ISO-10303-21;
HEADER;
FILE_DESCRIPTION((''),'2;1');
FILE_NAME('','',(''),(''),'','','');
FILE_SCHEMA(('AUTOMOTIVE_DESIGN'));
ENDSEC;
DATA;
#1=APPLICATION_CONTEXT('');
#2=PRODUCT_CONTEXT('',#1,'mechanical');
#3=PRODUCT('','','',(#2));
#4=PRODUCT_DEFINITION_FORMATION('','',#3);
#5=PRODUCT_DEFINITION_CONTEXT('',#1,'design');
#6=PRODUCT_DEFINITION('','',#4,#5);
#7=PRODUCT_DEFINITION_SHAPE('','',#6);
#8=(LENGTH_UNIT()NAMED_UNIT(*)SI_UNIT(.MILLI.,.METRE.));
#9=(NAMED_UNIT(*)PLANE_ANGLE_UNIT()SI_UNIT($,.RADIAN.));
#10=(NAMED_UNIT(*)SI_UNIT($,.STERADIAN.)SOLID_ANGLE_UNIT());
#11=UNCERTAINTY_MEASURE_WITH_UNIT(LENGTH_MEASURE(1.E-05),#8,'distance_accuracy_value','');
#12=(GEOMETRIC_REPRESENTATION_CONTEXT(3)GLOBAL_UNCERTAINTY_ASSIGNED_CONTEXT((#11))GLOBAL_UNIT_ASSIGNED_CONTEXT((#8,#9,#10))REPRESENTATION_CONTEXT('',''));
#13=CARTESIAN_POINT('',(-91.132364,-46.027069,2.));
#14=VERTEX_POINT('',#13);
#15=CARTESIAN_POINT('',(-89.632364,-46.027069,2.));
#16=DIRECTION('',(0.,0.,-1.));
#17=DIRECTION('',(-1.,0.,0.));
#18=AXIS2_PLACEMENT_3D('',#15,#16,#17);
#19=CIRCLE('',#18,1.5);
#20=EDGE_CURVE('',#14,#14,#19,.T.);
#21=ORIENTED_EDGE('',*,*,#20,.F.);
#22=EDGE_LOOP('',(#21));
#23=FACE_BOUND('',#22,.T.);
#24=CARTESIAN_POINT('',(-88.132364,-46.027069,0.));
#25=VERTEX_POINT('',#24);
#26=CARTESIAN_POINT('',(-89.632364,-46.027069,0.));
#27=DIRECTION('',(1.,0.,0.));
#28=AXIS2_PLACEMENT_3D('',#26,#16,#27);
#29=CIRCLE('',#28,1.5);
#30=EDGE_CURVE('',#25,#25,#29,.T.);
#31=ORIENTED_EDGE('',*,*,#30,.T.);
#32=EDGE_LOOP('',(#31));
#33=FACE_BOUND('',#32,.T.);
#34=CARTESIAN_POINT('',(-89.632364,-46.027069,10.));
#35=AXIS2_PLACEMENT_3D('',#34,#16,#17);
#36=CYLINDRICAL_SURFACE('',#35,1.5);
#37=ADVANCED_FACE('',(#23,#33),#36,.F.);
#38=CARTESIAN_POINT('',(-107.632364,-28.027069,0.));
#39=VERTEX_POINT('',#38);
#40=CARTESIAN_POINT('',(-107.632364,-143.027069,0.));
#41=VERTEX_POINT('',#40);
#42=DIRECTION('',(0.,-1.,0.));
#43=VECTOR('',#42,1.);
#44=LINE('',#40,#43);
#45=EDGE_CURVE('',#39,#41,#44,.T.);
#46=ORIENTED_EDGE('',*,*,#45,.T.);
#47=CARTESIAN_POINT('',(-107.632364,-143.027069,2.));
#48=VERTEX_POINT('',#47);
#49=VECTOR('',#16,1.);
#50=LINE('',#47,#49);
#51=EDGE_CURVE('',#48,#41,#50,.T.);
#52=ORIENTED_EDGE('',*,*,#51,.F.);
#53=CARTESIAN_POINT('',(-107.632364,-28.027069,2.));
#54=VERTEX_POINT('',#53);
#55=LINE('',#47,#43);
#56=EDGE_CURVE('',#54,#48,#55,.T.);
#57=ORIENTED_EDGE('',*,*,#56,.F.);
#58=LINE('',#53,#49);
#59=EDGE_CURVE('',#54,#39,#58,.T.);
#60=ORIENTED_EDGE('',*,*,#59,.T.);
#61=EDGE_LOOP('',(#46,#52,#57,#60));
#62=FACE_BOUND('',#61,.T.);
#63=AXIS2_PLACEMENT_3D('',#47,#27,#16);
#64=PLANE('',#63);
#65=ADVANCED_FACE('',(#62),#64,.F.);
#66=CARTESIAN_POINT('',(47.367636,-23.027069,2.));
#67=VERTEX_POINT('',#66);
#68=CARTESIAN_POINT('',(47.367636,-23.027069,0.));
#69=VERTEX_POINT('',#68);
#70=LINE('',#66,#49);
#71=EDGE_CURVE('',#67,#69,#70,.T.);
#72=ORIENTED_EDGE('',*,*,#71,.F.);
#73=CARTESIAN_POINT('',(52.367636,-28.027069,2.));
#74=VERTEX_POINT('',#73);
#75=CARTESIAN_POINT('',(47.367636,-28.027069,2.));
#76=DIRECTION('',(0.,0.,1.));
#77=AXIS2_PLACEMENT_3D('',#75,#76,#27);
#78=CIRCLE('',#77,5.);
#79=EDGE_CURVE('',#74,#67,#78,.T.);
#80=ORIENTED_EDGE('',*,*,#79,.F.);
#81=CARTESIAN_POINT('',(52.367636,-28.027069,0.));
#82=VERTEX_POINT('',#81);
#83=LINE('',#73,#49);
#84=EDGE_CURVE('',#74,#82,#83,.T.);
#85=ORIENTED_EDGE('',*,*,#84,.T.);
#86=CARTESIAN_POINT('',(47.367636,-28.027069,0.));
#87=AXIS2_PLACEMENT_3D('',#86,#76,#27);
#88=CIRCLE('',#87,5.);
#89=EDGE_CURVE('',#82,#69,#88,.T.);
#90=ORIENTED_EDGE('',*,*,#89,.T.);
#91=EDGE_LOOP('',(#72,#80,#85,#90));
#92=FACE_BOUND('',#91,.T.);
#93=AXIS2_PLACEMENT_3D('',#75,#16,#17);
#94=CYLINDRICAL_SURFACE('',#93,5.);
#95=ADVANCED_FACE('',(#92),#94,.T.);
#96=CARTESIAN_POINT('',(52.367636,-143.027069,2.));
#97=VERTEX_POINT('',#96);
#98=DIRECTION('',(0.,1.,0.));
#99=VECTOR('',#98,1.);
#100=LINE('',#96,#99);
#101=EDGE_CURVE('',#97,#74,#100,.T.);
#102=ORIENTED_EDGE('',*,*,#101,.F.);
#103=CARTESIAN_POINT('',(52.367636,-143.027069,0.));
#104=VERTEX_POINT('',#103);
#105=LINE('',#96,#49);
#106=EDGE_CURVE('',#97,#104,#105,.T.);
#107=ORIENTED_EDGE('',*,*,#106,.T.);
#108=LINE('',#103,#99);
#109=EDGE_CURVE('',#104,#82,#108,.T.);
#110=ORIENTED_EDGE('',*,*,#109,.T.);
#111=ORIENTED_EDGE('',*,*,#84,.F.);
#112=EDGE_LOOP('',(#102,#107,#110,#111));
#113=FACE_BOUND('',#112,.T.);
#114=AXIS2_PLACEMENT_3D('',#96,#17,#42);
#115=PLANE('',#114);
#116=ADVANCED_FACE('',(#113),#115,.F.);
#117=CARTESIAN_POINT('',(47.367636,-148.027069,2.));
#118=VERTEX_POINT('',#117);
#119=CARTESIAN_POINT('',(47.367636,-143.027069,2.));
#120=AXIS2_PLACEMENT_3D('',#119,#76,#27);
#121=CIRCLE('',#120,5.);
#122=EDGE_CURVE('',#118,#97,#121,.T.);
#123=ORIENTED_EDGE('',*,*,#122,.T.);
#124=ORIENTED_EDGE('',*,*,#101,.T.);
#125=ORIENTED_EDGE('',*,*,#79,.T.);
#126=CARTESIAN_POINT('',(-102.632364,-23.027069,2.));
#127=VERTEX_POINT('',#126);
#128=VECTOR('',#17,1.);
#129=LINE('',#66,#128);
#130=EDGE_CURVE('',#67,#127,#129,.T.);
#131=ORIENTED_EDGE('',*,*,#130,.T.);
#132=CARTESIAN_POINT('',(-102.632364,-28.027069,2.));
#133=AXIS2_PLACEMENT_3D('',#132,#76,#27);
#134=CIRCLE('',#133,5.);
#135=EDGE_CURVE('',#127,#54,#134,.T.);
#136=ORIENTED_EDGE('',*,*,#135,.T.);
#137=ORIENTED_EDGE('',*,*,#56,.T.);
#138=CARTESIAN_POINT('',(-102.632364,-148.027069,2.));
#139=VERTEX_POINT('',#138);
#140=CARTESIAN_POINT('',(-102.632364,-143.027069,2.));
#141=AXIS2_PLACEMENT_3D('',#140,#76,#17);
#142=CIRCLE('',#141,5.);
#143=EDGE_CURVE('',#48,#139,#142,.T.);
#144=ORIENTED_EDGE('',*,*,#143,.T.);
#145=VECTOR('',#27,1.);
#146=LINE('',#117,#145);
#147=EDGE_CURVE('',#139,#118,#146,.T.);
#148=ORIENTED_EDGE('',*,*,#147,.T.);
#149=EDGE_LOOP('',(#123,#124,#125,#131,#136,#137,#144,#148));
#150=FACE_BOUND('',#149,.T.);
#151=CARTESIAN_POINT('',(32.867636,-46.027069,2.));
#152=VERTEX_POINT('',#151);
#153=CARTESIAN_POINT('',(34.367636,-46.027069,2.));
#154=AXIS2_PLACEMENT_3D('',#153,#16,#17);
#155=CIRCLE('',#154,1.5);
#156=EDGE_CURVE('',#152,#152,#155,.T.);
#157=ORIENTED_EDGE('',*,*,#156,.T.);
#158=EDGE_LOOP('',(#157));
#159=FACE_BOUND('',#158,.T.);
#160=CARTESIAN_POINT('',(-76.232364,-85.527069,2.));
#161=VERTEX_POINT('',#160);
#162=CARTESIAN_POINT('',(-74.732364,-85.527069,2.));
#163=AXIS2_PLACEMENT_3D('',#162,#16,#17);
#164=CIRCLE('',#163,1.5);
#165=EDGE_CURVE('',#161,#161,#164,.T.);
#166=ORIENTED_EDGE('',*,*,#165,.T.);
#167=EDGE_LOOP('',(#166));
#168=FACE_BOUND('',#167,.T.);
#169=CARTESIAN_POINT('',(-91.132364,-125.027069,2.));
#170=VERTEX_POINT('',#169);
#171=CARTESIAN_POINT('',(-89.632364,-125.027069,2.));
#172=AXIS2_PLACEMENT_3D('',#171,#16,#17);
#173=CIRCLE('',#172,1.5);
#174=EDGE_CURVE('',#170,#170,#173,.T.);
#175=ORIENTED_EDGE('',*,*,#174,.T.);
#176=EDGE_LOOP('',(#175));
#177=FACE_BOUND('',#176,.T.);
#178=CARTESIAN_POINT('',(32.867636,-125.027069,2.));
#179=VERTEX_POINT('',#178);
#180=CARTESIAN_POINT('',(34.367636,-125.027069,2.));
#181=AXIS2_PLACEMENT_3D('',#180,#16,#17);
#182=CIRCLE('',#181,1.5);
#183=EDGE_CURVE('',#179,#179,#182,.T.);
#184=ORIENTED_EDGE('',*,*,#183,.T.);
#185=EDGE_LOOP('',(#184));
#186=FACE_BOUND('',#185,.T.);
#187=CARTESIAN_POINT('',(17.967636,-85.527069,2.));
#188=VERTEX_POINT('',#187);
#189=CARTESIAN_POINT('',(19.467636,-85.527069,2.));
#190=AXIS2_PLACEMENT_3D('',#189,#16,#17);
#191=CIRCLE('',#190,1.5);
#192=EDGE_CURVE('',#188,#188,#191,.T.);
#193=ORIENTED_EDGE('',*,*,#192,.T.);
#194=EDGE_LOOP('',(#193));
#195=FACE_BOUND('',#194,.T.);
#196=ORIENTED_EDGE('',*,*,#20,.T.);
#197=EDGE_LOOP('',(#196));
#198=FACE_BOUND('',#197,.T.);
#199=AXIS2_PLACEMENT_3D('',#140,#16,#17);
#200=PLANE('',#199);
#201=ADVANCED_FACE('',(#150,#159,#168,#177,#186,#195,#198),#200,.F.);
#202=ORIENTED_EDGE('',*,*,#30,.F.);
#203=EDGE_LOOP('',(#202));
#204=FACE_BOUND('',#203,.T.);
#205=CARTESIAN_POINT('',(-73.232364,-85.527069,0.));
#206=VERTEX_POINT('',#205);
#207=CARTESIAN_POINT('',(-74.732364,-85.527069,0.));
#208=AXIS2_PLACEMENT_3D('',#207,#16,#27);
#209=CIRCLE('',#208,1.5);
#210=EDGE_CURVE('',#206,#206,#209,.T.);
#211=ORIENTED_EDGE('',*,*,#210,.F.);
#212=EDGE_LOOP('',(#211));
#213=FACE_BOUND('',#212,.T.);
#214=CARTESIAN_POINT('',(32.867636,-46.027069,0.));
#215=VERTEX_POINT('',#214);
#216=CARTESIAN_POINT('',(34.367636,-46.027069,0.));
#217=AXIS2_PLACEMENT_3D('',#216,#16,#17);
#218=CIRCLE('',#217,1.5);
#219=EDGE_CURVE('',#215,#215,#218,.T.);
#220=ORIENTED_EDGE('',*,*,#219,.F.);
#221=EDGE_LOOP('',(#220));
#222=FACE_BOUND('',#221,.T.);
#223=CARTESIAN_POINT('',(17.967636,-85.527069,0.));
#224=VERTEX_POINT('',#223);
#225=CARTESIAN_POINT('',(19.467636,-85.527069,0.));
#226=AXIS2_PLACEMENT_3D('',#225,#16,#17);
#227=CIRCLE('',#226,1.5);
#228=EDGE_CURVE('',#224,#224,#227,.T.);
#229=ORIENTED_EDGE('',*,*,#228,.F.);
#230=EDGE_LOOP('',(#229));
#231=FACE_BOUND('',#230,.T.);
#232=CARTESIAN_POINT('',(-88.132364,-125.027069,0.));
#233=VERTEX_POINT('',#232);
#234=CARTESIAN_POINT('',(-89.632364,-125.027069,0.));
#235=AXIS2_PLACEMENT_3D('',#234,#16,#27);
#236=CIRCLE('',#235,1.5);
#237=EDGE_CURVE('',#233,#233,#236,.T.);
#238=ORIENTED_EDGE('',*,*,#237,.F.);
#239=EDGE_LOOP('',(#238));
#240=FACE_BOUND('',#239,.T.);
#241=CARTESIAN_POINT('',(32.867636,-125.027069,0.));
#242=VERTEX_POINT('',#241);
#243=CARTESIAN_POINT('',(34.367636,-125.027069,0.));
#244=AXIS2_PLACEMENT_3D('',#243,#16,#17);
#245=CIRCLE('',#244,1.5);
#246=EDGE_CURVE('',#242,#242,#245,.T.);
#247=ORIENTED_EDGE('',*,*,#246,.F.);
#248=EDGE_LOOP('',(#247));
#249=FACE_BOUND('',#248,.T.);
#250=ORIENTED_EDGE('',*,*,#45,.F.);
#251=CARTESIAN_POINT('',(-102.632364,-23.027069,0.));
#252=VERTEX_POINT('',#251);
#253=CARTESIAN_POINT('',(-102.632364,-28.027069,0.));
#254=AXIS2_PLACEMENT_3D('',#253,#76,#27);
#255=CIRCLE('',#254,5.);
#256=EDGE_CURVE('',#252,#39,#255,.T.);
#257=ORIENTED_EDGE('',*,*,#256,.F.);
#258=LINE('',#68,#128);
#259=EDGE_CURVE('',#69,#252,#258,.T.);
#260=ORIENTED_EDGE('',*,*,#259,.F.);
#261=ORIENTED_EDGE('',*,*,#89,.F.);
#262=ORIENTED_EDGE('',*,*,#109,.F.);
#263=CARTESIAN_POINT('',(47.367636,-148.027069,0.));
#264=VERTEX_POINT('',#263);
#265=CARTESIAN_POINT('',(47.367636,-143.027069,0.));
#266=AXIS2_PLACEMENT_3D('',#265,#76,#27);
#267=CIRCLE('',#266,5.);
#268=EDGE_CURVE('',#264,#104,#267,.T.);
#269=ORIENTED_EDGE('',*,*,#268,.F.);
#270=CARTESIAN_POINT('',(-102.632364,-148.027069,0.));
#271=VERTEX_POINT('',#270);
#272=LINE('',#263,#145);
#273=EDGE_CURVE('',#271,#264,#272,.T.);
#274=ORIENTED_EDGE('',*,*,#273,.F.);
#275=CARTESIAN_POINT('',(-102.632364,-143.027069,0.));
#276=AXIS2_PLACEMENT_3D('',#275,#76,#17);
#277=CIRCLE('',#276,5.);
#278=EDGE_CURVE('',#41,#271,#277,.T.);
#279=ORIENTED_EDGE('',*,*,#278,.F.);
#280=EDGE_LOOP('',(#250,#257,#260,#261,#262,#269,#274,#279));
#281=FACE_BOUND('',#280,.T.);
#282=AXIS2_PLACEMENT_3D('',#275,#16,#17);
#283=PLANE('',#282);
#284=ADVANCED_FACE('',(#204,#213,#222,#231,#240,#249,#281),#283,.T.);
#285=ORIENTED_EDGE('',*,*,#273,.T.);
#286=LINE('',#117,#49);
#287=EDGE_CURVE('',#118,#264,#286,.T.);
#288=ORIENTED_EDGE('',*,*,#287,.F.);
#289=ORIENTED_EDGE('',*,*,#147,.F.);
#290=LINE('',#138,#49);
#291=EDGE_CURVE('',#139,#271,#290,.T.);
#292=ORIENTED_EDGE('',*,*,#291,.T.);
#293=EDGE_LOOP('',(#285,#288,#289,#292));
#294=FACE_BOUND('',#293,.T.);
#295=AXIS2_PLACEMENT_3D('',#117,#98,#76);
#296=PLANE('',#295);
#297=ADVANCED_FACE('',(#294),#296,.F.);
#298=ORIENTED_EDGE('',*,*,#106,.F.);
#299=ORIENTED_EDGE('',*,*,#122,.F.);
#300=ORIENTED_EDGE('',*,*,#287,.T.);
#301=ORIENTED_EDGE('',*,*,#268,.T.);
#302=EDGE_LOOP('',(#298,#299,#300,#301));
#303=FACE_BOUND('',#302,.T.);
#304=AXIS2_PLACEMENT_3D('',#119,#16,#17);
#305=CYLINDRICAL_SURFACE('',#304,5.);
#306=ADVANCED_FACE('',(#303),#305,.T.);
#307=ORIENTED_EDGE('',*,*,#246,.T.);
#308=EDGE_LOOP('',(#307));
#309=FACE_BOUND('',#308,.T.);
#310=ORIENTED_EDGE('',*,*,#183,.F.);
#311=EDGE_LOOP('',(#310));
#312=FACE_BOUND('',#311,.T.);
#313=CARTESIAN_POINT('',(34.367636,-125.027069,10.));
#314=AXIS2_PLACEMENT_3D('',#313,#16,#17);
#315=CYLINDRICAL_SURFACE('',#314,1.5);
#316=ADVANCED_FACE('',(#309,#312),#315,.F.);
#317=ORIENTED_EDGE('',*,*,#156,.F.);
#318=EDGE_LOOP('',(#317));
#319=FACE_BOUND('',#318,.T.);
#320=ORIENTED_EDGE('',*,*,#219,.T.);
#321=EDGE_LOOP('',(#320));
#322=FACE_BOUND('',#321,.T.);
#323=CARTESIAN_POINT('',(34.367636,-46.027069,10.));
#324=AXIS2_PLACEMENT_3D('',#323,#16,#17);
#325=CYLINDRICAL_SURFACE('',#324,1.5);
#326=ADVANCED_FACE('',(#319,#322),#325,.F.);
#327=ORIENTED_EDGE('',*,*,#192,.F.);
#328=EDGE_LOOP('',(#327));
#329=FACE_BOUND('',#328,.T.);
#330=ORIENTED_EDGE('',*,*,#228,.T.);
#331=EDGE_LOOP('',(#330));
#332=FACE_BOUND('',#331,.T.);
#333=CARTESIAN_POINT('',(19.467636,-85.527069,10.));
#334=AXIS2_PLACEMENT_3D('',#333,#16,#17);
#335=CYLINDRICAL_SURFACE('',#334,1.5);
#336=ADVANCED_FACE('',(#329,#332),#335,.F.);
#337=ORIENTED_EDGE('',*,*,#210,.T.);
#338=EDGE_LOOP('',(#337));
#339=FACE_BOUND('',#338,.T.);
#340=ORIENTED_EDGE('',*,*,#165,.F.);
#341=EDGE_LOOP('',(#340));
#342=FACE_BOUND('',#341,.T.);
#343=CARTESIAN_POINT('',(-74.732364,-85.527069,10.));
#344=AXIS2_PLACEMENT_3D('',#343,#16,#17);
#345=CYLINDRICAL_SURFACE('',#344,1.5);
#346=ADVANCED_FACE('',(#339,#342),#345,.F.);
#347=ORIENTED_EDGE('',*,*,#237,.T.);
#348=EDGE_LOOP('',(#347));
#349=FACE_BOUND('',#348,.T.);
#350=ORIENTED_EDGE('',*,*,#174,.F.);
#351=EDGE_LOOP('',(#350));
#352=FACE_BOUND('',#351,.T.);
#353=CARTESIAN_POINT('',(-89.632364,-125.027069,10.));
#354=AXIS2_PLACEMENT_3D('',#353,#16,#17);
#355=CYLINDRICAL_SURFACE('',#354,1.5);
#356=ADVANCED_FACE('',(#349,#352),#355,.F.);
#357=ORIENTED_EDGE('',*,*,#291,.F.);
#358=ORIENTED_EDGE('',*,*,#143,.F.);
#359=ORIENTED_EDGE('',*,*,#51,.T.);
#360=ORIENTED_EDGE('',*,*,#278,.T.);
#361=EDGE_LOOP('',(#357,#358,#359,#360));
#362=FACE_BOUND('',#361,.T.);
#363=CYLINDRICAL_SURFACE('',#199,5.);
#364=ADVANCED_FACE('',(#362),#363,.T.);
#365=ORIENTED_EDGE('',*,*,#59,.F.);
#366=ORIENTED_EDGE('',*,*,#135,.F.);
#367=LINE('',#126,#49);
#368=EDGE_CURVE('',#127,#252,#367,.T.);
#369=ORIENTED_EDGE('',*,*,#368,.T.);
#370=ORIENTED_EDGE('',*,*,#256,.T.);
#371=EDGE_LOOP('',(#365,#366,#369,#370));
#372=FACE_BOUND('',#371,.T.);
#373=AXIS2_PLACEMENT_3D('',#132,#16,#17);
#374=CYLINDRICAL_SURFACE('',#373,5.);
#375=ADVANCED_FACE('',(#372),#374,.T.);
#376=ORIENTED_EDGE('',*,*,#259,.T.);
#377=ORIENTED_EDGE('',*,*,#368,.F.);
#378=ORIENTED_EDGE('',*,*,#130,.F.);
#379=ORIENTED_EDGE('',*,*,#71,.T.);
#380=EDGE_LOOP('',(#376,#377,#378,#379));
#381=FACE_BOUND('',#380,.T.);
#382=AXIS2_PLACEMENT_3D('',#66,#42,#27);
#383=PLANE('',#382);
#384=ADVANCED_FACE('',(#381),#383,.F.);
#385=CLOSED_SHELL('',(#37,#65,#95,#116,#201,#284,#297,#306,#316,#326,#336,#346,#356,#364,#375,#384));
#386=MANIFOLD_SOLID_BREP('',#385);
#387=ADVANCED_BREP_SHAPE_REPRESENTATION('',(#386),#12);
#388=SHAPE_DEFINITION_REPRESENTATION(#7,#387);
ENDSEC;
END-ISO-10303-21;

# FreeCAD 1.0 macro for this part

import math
import FreeCAD as App
import Part
import Sketcher

doc = App.newDocument("Part")
params = doc.addObject("Spreadsheet::Sheet", "Params")
for row, (alias, value) in enumerate([
    ("sketch1_radius", "5 mm"),
    ("sketch1_width", "150 mm"),
    ("sketch1_height", "115 mm"),
    ("pad1_length", "2 mm"),
    ("sketch2_diameter", "3 mm"),
    ("pocket1_length", "10 mm"),
], start=1):
    params.set(f"A{row}", alias)
    params.set(f"B{row}", "=" + value)
    params.setAlias(f"B{row}", alias)

body = doc.addObject("PartDesign::Body", "Body")

sketch1 = body.newObject("Sketcher::SketchObject", "Sketch")
sketch1.AttachmentSupport = (doc.getObject("XY_Plane"), [""])
sketch1.MapMode = "FlatFace"
sketch1.addGeometry([
    Part.LineSegment(App.Vector(-103, -148, 0), App.Vector(47, -148, 0)),
    Part.ArcOfCircle(Part.Circle(App.Vector(47, -143, 0), App.Vector(0, 0, 1), 5), math.radians(-90), math.radians(0)),
    Part.LineSegment(App.Vector(52, -143, 0), App.Vector(52, -28, 0)),
    Part.ArcOfCircle(Part.Circle(App.Vector(47, -28, 0), App.Vector(0, 0, 1), 5), math.radians(0), math.radians(90)),
    Part.LineSegment(App.Vector(47, -23, 0), App.Vector(-103, -23, 0)),
    Part.ArcOfCircle(Part.Circle(App.Vector(-103, -28, 0), App.Vector(0, 0, 1), 5), math.radians(90), math.radians(180)),
    Part.LineSegment(App.Vector(-108, -28, 0), App.Vector(-108, -143, 0)),
    Part.ArcOfCircle(Part.Circle(App.Vector(-103, -143, 0), App.Vector(0, 0, 1), 5), math.radians(180), math.radians(270)),
], False)
sketch1.addConstraint([
    Sketcher.Constraint("Tangent", 0, 2, 1, 1),
    Sketcher.Constraint("Tangent", 1, 2, 2, 1),
    Sketcher.Constraint("Tangent", 2, 2, 3, 1),
    Sketcher.Constraint("Tangent", 3, 2, 4, 1),
    Sketcher.Constraint("Tangent", 4, 2, 5, 1),
    Sketcher.Constraint("Tangent", 5, 2, 6, 1),
    Sketcher.Constraint("Tangent", 6, 2, 7, 1),
    Sketcher.Constraint("Tangent", 7, 2, 0, 1),
    Sketcher.Constraint("Horizontal", 0),
    Sketcher.Constraint("Vertical", 2),
    Sketcher.Constraint("Horizontal", 4),
    Sketcher.Constraint("Vertical", 6),
    Sketcher.Constraint("Equal", 1, 3),
    Sketcher.Constraint("Equal", 3, 5),
    Sketcher.Constraint("Equal", 5, 7),
    Sketcher.Constraint("Radius", 1, 5.0),
    Sketcher.Constraint("DistanceX", 0, 1, 0, 2, 150.0),
    Sketcher.Constraint("DistanceY", 2, 1, 2, 2, 115.0),
    Sketcher.Constraint("DistanceY", 1, 3, -1, 1, 143.027069),
    Sketcher.Constraint("DistanceX", -1, 1, 1, 3, 47.367636),
])
sketch1.setExpression("Constraints[15]", "Params.sketch1_radius")
sketch1.setExpression("Constraints[16]", "Params.sketch1_width")
sketch1.setExpression("Constraints[17]", "Params.sketch1_height")
pad1 = body.newObject("PartDesign::Pad", "Pad")
pad1.Profile = sketch1
pad1.setExpression("Length", "Params.pad1_length")

sketch2 = body.newObject("Sketcher::SketchObject", "Sketch001")
sketch2.AttachmentSupport = (doc.getObject("XY_Plane"), [""])
sketch2.MapMode = "FlatFace"
sketch2.addGeometry([
    Part.Circle(App.Vector(34.4, -125, 0), App.Vector(0, 0, 1), 1.5),
    Part.Circle(App.Vector(19.5, -85.5, 0), App.Vector(0, 0, 1), 1.5),
    Part.Circle(App.Vector(34.4, -46, 0), App.Vector(0, 0, 1), 1.5),
    Part.Circle(App.Vector(-89.6, -46, 0), App.Vector(0, 0, 1), 1.5),
    Part.Circle(App.Vector(-74.7, -85.5, 0), App.Vector(0, 0, 1), 1.5),
    Part.Circle(App.Vector(-89.6, -125, 0), App.Vector(0, 0, 1), 1.5),
], False)
sketch2.addConstraint([
    Sketcher.Constraint("Equal", 0, 1),
    Sketcher.Constraint("Equal", 1, 2),
    Sketcher.Constraint("Equal", 2, 3),
    Sketcher.Constraint("Equal", 3, 4),
    Sketcher.Constraint("Equal", 4, 5),
    Sketcher.Constraint("Horizontal", 2, 3, 3, 3),
    Sketcher.Constraint("Horizontal", 1, 3, 4, 3),
    Sketcher.Constraint("Horizontal", 0, 3, 5, 3),
    Sketcher.Constraint("Vertical", 0, 3, 2, 3),
    Sketcher.Constraint("Vertical", 3, 3, 5, 3),
    Sketcher.Constraint("Diameter", 0, 3.0),
    Sketcher.Constraint("DistanceY", 0, 3, 2, 3, 79.0),
    Sketcher.Constraint("DistanceX", 3, 3, 2, 3, 124.0),
    Sketcher.Constraint("DistanceX", 1, 3, 0, 3, 14.9),
    Sketcher.Constraint("DistanceY", 0, 3, 1, 3, 39.5),
    Sketcher.Constraint("DistanceX", 3, 3, 4, 3, 14.9),
    Sketcher.Constraint("DistanceY", 0, 3, -1, 1, 125.027069),
    Sketcher.Constraint("DistanceX", -1, 1, 0, 3, 34.367636),
])
sketch2.setExpression("Constraints[10]", "Params.sketch2_diameter")
pocket1 = body.newObject("PartDesign::Pocket", "Pocket")
pocket1.Profile = sketch2
pocket1.setExpression("Length", "Params.pocket1_length")
pocket1.Reversed = True

doc.recompute()
